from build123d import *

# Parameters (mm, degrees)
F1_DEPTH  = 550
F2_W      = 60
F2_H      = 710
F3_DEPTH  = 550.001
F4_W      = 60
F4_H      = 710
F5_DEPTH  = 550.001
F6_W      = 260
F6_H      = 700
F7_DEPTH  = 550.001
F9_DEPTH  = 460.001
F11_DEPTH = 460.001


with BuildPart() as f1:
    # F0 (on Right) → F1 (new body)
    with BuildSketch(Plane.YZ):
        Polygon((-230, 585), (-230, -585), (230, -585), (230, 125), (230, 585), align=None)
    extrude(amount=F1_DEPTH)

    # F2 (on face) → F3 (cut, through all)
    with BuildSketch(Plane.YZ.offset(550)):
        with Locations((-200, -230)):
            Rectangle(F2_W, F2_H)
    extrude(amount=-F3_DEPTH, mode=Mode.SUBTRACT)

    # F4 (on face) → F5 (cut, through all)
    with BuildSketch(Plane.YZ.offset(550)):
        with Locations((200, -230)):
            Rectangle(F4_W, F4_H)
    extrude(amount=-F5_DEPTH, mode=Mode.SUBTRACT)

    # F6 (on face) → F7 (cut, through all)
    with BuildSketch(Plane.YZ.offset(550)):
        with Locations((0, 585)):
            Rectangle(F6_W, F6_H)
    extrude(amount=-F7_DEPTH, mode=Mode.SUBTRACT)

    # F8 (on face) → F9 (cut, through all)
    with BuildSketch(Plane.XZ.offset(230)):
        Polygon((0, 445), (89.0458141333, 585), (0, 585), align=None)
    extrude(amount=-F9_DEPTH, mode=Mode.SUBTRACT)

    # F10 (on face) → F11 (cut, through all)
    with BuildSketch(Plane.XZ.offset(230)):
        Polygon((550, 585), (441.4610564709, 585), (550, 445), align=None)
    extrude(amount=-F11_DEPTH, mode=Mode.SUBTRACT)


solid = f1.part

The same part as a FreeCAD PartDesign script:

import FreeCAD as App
import Part
import Sketcher


def add_polygon(sketch, points):
    """Adds a closed chain of lines whose ends are joined by coincident constraints."""
    first, n = sketch.GeometryCount, len(points)
    for a, b in zip(points, points[1:] + points[:1]):
        sketch.addGeometry(Part.LineSegment(App.Vector(*a, 0), App.Vector(*b, 0)), False)
    for i in range(n):
        sketch.addConstraint(Sketcher.Constraint("Coincident", first + i, 2, first + (i + 1) % n, 1))

doc = App.newDocument("Part")
body = doc.addObject("PartDesign::Body", "Body")

# Sketch on YZ plane
sketch1 = body.newObject("Sketcher::SketchObject", "Sketch")
sketch1.AttachmentSupport = (doc.getObject("YZ_Plane"), [""])
sketch1.MapMode = "FlatFace"
add_polygon(sketch1, [(-230, 585), (-230, -585), (230, -585), (230, 585)])  # lines 0-3
sketch1.addConstraint([
    Sketcher.Constraint("Vertical", 0),
    Sketcher.Constraint("Horizontal", 1),
    Sketcher.Constraint("Vertical", 2),
    Sketcher.Constraint("Horizontal", 3),
    Sketcher.Constraint("Symmetric", 0, 2, 2, 2, -1, 1),
    Sketcher.Constraint("DistanceX", 1, 1, 1, 2, 460.0),
    Sketcher.Constraint("DistanceY", 0, 2, 0, 1, 1170.0),
])
pad1 = body.newObject("PartDesign::Pad", "Pad")
pad1.Profile = sketch1
pad1.Length = 550

# Sketch on YZ plane
sketch2 = body.newObject("Sketcher::SketchObject", "Sketch001")
sketch2.AttachmentSupport = (doc.getObject("YZ_Plane"), [""])
sketch2.MapMode = "FlatFace"
sketch2.AttachmentOffset = App.Placement(App.Vector(0, 0, 550), App.Rotation())
add_polygon(sketch2, [(-230, 125), (-230, -585), (-170, -585), (-170, 125)])  # lines 0-3
sketch2.addConstraint([
    Sketcher.Constraint("Vertical", 0),
    Sketcher.Constraint("Horizontal", 1),
    Sketcher.Constraint("Vertical", 2),
    Sketcher.Constraint("Horizontal", 3),
    Sketcher.Constraint("DistanceX", 1, 1, 1, 2, 60.0),
    Sketcher.Constraint("DistanceY", 0, 2, 0, 1, 710.0),
    Sketcher.Constraint("DistanceX", 0, 2, -1, 1, 230.0),
    Sketcher.Constraint("DistanceY", 0, 2, -1, 1, 585.0),
])
pocket1 = body.newObject("PartDesign::Pocket", "Pocket")
pocket1.Profile = sketch2
pocket1.Type = "ThroughAll"

# Sketch on YZ plane
sketch3 = body.newObject("Sketcher::SketchObject", "Sketch002")
sketch3.AttachmentSupport = (doc.getObject("YZ_Plane"), [""])
sketch3.MapMode = "FlatFace"
sketch3.AttachmentOffset = App.Placement(App.Vector(0, 0, 550), App.Rotation())
add_polygon(sketch3, [(170, 125), (170, -585), (230, -585), (230, 125)])  # lines 0-3
sketch3.addConstraint([
    Sketcher.Constraint("Vertical", 0),
    Sketcher.Constraint("Horizontal", 1),
    Sketcher.Constraint("Vertical", 2),
    Sketcher.Constraint("Horizontal", 3),
    Sketcher.Constraint("DistanceX", 1, 1, 1, 2, 60.0),
    Sketcher.Constraint("DistanceY", 0, 2, 0, 1, 710.0),
    Sketcher.Constraint("DistanceX", -1, 1, 0, 2, 170.0),
    Sketcher.Constraint("DistanceY", 0, 2, -1, 1, 585.0),
])
pocket2 = body.newObject("PartDesign::Pocket", "Pocket001")
pocket2.Profile = sketch3
pocket2.Type = "ThroughAll"

# Sketch on YZ plane
sketch4 = body.newObject("Sketcher::SketchObject", "Sketch003")
sketch4.AttachmentSupport = (doc.getObject("YZ_Plane"), [""])
sketch4.MapMode = "FlatFace"
sketch4.AttachmentOffset = App.Placement(App.Vector(0, 0, 550), App.Rotation())
add_polygon(sketch4, [(-130, 935), (-130, 235), (130, 235), (130, 935)])  # lines 0-3
sketch4.addConstraint([
    Sketcher.Constraint("Vertical", 0),
    Sketcher.Constraint("Horizontal", 1),
    Sketcher.Constraint("Vertical", 2),
    Sketcher.Constraint("Horizontal", 3),
    Sketcher.Constraint("DistanceX", 1, 1, 1, 2, 260.0),
    Sketcher.Constraint("DistanceY", 0, 2, 0, 1, 700.0),
    Sketcher.Constraint("DistanceX", 0, 2, -1, 1, 130.0),
    Sketcher.Constraint("DistanceY", -1, 1, 0, 2, 235.0),
])
pocket3 = body.newObject("PartDesign::Pocket", "Pocket002")
pocket3.Profile = sketch4
pocket3.Type = "ThroughAll"

# Sketch on XZ plane
sketch5 = body.newObject("Sketcher::SketchObject", "Sketch004")
sketch5.AttachmentSupport = (doc.getObject("XZ_Plane"), [""])
sketch5.MapMode = "FlatFace"
sketch5.AttachmentOffset = App.Placement(App.Vector(0, 0, 230), App.Rotation())
add_polygon(sketch5, [(0, 445), (89, 585), (0, 585)])  # lines 0-2
sketch5.addConstraint([
    Sketcher.Constraint("Horizontal", 1),
    Sketcher.Constraint("Vertical", 2),
    Sketcher.Constraint("PointOnObject", 1, 2, -2),
    Sketcher.Constraint("DistanceY", 2, 2, 2, 1, 140.0),
    Sketcher.Constraint("DistanceY", -1, 1, 0, 2, 585.0),
    Sketcher.Constraint("DistanceX", 1, 2, 1, 1, 89.045814),
])
pocket4 = body.newObject("PartDesign::Pocket", "Pocket003")
pocket4.Profile = sketch5
pocket4.Type = "ThroughAll"

# Sketch on XZ plane
sketch6 = body.newObject("Sketcher::SketchObject", "Sketch005")
sketch6.AttachmentSupport = (doc.getObject("XZ_Plane"), [""])
sketch6.MapMode = "FlatFace"
sketch6.AttachmentOffset = App.Placement(App.Vector(0, 0, 230), App.Rotation())
add_polygon(sketch6, [(550, 585), (441, 585), (550, 445)])  # lines 0-2
sketch6.addConstraint([
    Sketcher.Constraint("Horizontal", 0),
    Sketcher.Constraint("Vertical", 2),
    Sketcher.Constraint("DistanceY", 2, 1, 2, 2, 140.0),
    Sketcher.Constraint("DistanceY", -1, 1, 0, 2, 585.0),
    Sketcher.Constraint("DistanceX", -1, 1, 1, 2, 550.0),
    Sketcher.Constraint("Distance", 1, 177.145991),
])
pocket5 = body.newObject("PartDesign::Pocket", "Pocket004")
pocket5.Profile = sketch6
pocket5.Type = "ThroughAll"

doc.recompute()
